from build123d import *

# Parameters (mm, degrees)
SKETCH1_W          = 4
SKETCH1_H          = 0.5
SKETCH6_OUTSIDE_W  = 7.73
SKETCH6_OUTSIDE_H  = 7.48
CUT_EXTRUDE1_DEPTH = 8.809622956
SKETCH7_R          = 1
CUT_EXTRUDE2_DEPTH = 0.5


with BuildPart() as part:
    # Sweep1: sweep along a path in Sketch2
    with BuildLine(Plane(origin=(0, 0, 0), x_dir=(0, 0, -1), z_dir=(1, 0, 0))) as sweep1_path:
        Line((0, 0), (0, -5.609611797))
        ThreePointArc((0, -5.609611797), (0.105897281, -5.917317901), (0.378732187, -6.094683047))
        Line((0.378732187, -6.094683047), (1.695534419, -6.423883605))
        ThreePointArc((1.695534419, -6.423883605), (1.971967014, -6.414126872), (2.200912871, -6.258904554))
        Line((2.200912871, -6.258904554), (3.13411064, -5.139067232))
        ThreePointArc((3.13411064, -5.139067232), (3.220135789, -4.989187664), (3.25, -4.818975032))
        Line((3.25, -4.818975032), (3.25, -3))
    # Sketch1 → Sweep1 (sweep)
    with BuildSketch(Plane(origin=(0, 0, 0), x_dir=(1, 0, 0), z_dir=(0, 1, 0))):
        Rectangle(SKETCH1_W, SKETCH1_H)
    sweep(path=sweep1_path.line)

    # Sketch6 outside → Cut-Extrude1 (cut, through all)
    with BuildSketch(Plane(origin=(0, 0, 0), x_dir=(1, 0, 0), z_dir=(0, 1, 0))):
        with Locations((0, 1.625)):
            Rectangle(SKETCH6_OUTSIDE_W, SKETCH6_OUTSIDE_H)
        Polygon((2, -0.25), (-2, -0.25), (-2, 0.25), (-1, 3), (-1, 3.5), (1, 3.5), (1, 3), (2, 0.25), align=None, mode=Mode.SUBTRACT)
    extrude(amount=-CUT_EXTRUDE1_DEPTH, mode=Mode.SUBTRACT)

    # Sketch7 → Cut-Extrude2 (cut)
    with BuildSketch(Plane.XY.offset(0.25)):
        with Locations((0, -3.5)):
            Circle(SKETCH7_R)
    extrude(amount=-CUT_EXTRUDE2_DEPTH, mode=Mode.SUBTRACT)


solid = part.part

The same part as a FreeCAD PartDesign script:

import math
import FreeCAD as App
import Part
import Sketcher
from FreeCAD import Vector
Q = App.Units.Quantity

doc = App.newDocument("Part")
params = doc.addObject("Spreadsheet::Sheet", "Params")
for row, (alias, value) in enumerate([
    ("sketch1_width", "4 mm"),
    ("sketch1_height", "0.5 mm"),
    ("sketch2_radius", "0.5 mm"),
    ("sketch3_width", "4 mm"),
    ("sketch3_width2", "2 mm"),
    ("sketch3_height", "0.5 mm"),
    ("sketch3_width3", "7.73 mm"),
    ("sketch3_height2", "7.48 mm"),
    ("sketch4_diameter", "2 mm"),
    ("pocket2_length", "0.5 mm"),
], start=1):
    params.set(f"A{row}", alias)
    params.set(f"B{row}", "=" + value)
    params.setAlias(f"B{row}", alias)

body = doc.addObject("PartDesign::Body", "Body")

# Sketch on XZ plane
sketch1 = doc.addObject("Sketcher::SketchObject", "Sketch")
body.addObject(sketch1)
sketch1.AttachmentSupport = (doc.XZ_Plane, [""])
sketch1.MapMode = "FlatFace"
sketch1.addGeometry([
    Part.LineSegment(Vector(-2, -0.2, 0), Vector(-2, 0.2, 0)),
    Part.LineSegment(Vector(-2, 0.2, 0), Vector(2, 0.2, 0)),
    Part.LineSegment(Vector(2, 0.2, 0), Vector(2, -0.2, 0)),
    Part.LineSegment(Vector(2, -0.2, 0), Vector(-2, -0.2, 0)),
], False)
sketch1.addConstraint([
    Sketcher.Constraint("Coincident", 0, 2, 1, 1),
    Sketcher.Constraint("Coincident", 1, 2, 2, 1),
    Sketcher.Constraint("Coincident", 2, 2, 3, 1),
    Sketcher.Constraint("Coincident", 3, 2, 0, 1),
    Sketcher.Constraint("Vertical", 0),
    Sketcher.Constraint("Horizontal", 1),
    Sketcher.Constraint("Vertical", 2),
    Sketcher.Constraint("Horizontal", 3),
    Sketcher.Constraint("Symmetric", 0, 2, 2, 2, -1, 1),
    Sketcher.Constraint("DistanceX", 1, 1, 1, 2, Q("4 mm")),
    Sketcher.Constraint("DistanceY", 0, 1, 0, 2, Q("0.5 mm")),
])
sketch1.setExpression("Constraints[9]", "Params.sketch1_width")
sketch1.setExpression("Constraints[10]", "Params.sketch1_height")

# Sketch on YZ plane
sketch2 = doc.addObject("Sketcher::SketchObject", "Sketch001")
body.addObject(sketch2)
sketch2.AttachmentSupport = (doc.YZ_Plane, [""])
sketch2.MapMode = "FlatFace"
sketch2.addGeometry([
    Part.LineSegment(Vector(0, 0, 0), Vector(-5.61, 0, 0)),  # 0
    Part.ArcOfCircle(Part.Circle(Vector(-5.61, -0.5, 0), Vector(0, 0, 1), 0.5), math.radians(90), math.radians(166)),  # 1
    Part.LineSegment(Vector(-6.09, -0.38, 0), Vector(-6.42, -1.7, 0)),  # 2
    Part.ArcOfCircle(Part.Circle(Vector(-5.94, -1.82, 0), Vector(0, 0, 1), 0.5), math.radians(166), math.radians(230)),  # 3
    Part.LineSegment(Vector(-6.26, -2.2, 0), Vector(-5.14, -3.13, 0)),  # 4
    Part.ArcOfCircle(Part.Circle(Vector(-4.82, -2.75, 0), Vector(0, 0, 1), 0.5), math.radians(-130), math.radians(-90)),  # 5
    Part.LineSegment(Vector(-4.82, -3.25, 0), Vector(-3, -3.25, 0)),  # 6
], False)
sketch2.addConstraint([
    Sketcher.Constraint("Tangent", 0, 2, 1, 1),
    Sketcher.Constraint("Tangent", 1, 2, 2, 1),
    Sketcher.Constraint("Tangent", 2, 2, 3, 1),
    Sketcher.Constraint("Tangent", 3, 2, 4, 1),
    Sketcher.Constraint("Tangent", 4, 2, 5, 1),
    Sketcher.Constraint("Tangent", 5, 2, 6, 1),
    Sketcher.Constraint("Horizontal", 0),
    Sketcher.Constraint("Horizontal", 6),
    Sketcher.Constraint("Coincident", 0, 1, -1, 1),
    Sketcher.Constraint("Equal", 1, 3),
    Sketcher.Constraint("Equal", 3, 5),
    Sketcher.Constraint("Radius", 1, Q("0.5 mm")),
    Sketcher.Constraint("DistanceX", 6, 2, -1, 1, Q("3 mm")),
    Sketcher.Constraint("DistanceY", 5, 3, -1, 1, Q("2.75 mm")),
    Sketcher.Constraint("Distance", 4, Q("1.457702 mm")),
    Sketcher.Constraint("DistanceX", 0, 2, 0, 1, Q("5.609612 mm")),
    Sketcher.Constraint("DistanceX", 3, 3, 1, 3, Q("0.329201 mm")),
    Sketcher.Constraint("Distance", 2, Q("1.357329 mm")),
])
sketch2.setExpression("Constraints[11]", "Params.sketch2_radius")
doc.recompute()

additivepipe = doc.addObject("PartDesign::AdditivePipe", "AdditivePipe")
body.addObject(additivepipe)
additivepipe.Profile = sketch1
additivepipe.Spine = (sketch2, ["Edge1", "Edge2", "Edge3", "Edge4", "Edge5", "Edge6", "Edge7"])

# Sketch on XZ plane
sketch3 = doc.addObject("Sketcher::SketchObject", "Sketch002")
body.addObject(sketch3)
sketch3.AttachmentSupport = (doc.XZ_Plane, [""])
sketch3.MapMode = "FlatFace"
sketch3.addGeometry([
    Part.LineSegment(Vector(-3.9, -5.4, 0), Vector(-3.9, 2.1, 0)),  # 0
    Part.LineSegment(Vector(-3.9, 2.1, 0), Vector(3.9, 2.1, 0)),  # 1
    Part.LineSegment(Vector(3.9, 2.1, 0), Vector(3.9, -5.4, 0)),  # 2
    Part.LineSegment(Vector(3.9, -5.4, 0), Vector(-3.9, -5.4, 0)),  # 3
    Part.LineSegment(Vector(2, -0.2, 0), Vector(2, 0.2, 0)),  # 4
    Part.LineSegment(Vector(2, 0.2, 0), Vector(-2, 0.2, 0)),  # 5
    Part.LineSegment(Vector(-2, 0.2, 0), Vector(-2, -0.2, 0)),  # 6
    Part.LineSegment(Vector(-2, -0.2, 0), Vector(-1, -3, 0)),  # 7
    Part.LineSegment(Vector(-1, -3, 0), Vector(-1, -3.5, 0)),  # 8
    Part.LineSegment(Vector(-1, -3.5, 0), Vector(1, -3.5, 0)),  # 9
    Part.LineSegment(Vector(1, -3.5, 0), Vector(1, -3, 0)),  # 10
    Part.LineSegment(Vector(1, -3, 0), Vector(2, -0.2, 0)),  # 11
], False)
sketch3.addConstraint([
    Sketcher.Constraint("Coincident", 0, 2, 1, 1),
    Sketcher.Constraint("Coincident", 1, 2, 2, 1),
    Sketcher.Constraint("Coincident", 2, 2, 3, 1),
    Sketcher.Constraint("Coincident", 3, 2, 0, 1),
    Sketcher.Constraint("Coincident", 4, 2, 5, 1),
    Sketcher.Constraint("Coincident", 5, 2, 6, 1),
    Sketcher.Constraint("Coincident", 6, 2, 7, 1),
    Sketcher.Constraint("Coincident", 7, 2, 8, 1),
    Sketcher.Constraint("Coincident", 8, 2, 9, 1),
    Sketcher.Constraint("Coincident", 9, 2, 10, 1),
    Sketcher.Constraint("Coincident", 10, 2, 11, 1),
    Sketcher.Constraint("Coincident", 11, 2, 4, 1),
    Sketcher.Constraint("Vertical", 0),
    Sketcher.Constraint("Horizontal", 1),
    Sketcher.Constraint("Vertical", 2),
    Sketcher.Constraint("Horizontal", 3),
    Sketcher.Constraint("Vertical", 4),
    Sketcher.Constraint("Horizontal", 5),
    Sketcher.Constraint("Vertical", 6),
    Sketcher.Constraint("Vertical", 8),
    Sketcher.Constraint("Horizontal", 9),
    Sketcher.Constraint("Vertical", 10),
    Sketcher.Constraint("Symmetric", 4, 2, 6, 2, -1, 1),
    Sketcher.Constraint("Symmetric", 7, 2, 10, 2, -2),
    Sketcher.Constraint("Horizontal", 6, 2, 11, 2),
    Sketcher.Constraint("Equal", 6, 8),
    Sketcher.Constraint("DistanceX", 5, 2, 5, 1, Q("4 mm")),
    Sketcher.Constraint("DistanceX", 9, 1, 9, 2, Q("2 mm")),
    Sketcher.Constraint("DistanceY", 4, 1, 4, 2, Q("0.5 mm")),
    Sketcher.Constraint("DistanceY", 7, 2, -1, 1, Q("3 mm")),
    Sketcher.Constraint("DistanceX", 1, 1, 1, 2, Q("7.73 mm")),
    Sketcher.Constraint("DistanceY", 0, 1, 0, 2, Q("7.48 mm")),
    Sketcher.Constraint("DistanceX", 0, 2, -1, 1, Q("3.865 mm")),
    Sketcher.Constraint("DistanceY", -1, 1, 0, 2, Q("2.115 mm")),
])
sketch3.setExpression("Constraints[26]", "Params.sketch3_width")
sketch3.setExpression("Constraints[27]", "Params.sketch3_width2")
sketch3.setExpression("Constraints[28]", "Params.sketch3_height")
sketch3.setExpression("Constraints[30]", "Params.sketch3_width3")
sketch3.setExpression("Constraints[31]", "Params.sketch3_height2")
pocket1 = doc.addObject("PartDesign::Pocket", "Pocket")
body.addObject(pocket1)
pocket1.Profile = sketch3
pocket1.Type = "ThroughAll"
pocket1.Reversed = True

# Sketch on XY plane
sketch4 = doc.addObject("Sketcher::SketchObject", "Sketch003")
body.addObject(sketch4)
sketch4.AttachmentSupport = (doc.XY_Plane, [""])
sketch4.MapMode = "FlatFace"
sketch4.AttachmentOffset = App.Placement(Vector(0, 0, 0.25), App.Rotation())
sketch4.addGeometry(Part.Circle(Vector(0, -3.5, 0), Vector(0, 0, 1), 1), False)
sketch4.addConstraint([
    Sketcher.Constraint("PointOnObject", 0, 3, -2),
    Sketcher.Constraint("Diameter", 0, Q("2 mm")),
    Sketcher.Constraint("DistanceY", 0, 3, -1, 1, Q("3.5 mm")),
])
sketch4.setExpression("Constraints[1]", "Params.sketch4_diameter")
pocket2 = doc.addObject("PartDesign::Pocket", "Pocket001")
body.addObject(pocket2)
pocket2.Profile = sketch4
pocket2.setExpression("Length", "Params.pocket2_length")

doc.recompute()
